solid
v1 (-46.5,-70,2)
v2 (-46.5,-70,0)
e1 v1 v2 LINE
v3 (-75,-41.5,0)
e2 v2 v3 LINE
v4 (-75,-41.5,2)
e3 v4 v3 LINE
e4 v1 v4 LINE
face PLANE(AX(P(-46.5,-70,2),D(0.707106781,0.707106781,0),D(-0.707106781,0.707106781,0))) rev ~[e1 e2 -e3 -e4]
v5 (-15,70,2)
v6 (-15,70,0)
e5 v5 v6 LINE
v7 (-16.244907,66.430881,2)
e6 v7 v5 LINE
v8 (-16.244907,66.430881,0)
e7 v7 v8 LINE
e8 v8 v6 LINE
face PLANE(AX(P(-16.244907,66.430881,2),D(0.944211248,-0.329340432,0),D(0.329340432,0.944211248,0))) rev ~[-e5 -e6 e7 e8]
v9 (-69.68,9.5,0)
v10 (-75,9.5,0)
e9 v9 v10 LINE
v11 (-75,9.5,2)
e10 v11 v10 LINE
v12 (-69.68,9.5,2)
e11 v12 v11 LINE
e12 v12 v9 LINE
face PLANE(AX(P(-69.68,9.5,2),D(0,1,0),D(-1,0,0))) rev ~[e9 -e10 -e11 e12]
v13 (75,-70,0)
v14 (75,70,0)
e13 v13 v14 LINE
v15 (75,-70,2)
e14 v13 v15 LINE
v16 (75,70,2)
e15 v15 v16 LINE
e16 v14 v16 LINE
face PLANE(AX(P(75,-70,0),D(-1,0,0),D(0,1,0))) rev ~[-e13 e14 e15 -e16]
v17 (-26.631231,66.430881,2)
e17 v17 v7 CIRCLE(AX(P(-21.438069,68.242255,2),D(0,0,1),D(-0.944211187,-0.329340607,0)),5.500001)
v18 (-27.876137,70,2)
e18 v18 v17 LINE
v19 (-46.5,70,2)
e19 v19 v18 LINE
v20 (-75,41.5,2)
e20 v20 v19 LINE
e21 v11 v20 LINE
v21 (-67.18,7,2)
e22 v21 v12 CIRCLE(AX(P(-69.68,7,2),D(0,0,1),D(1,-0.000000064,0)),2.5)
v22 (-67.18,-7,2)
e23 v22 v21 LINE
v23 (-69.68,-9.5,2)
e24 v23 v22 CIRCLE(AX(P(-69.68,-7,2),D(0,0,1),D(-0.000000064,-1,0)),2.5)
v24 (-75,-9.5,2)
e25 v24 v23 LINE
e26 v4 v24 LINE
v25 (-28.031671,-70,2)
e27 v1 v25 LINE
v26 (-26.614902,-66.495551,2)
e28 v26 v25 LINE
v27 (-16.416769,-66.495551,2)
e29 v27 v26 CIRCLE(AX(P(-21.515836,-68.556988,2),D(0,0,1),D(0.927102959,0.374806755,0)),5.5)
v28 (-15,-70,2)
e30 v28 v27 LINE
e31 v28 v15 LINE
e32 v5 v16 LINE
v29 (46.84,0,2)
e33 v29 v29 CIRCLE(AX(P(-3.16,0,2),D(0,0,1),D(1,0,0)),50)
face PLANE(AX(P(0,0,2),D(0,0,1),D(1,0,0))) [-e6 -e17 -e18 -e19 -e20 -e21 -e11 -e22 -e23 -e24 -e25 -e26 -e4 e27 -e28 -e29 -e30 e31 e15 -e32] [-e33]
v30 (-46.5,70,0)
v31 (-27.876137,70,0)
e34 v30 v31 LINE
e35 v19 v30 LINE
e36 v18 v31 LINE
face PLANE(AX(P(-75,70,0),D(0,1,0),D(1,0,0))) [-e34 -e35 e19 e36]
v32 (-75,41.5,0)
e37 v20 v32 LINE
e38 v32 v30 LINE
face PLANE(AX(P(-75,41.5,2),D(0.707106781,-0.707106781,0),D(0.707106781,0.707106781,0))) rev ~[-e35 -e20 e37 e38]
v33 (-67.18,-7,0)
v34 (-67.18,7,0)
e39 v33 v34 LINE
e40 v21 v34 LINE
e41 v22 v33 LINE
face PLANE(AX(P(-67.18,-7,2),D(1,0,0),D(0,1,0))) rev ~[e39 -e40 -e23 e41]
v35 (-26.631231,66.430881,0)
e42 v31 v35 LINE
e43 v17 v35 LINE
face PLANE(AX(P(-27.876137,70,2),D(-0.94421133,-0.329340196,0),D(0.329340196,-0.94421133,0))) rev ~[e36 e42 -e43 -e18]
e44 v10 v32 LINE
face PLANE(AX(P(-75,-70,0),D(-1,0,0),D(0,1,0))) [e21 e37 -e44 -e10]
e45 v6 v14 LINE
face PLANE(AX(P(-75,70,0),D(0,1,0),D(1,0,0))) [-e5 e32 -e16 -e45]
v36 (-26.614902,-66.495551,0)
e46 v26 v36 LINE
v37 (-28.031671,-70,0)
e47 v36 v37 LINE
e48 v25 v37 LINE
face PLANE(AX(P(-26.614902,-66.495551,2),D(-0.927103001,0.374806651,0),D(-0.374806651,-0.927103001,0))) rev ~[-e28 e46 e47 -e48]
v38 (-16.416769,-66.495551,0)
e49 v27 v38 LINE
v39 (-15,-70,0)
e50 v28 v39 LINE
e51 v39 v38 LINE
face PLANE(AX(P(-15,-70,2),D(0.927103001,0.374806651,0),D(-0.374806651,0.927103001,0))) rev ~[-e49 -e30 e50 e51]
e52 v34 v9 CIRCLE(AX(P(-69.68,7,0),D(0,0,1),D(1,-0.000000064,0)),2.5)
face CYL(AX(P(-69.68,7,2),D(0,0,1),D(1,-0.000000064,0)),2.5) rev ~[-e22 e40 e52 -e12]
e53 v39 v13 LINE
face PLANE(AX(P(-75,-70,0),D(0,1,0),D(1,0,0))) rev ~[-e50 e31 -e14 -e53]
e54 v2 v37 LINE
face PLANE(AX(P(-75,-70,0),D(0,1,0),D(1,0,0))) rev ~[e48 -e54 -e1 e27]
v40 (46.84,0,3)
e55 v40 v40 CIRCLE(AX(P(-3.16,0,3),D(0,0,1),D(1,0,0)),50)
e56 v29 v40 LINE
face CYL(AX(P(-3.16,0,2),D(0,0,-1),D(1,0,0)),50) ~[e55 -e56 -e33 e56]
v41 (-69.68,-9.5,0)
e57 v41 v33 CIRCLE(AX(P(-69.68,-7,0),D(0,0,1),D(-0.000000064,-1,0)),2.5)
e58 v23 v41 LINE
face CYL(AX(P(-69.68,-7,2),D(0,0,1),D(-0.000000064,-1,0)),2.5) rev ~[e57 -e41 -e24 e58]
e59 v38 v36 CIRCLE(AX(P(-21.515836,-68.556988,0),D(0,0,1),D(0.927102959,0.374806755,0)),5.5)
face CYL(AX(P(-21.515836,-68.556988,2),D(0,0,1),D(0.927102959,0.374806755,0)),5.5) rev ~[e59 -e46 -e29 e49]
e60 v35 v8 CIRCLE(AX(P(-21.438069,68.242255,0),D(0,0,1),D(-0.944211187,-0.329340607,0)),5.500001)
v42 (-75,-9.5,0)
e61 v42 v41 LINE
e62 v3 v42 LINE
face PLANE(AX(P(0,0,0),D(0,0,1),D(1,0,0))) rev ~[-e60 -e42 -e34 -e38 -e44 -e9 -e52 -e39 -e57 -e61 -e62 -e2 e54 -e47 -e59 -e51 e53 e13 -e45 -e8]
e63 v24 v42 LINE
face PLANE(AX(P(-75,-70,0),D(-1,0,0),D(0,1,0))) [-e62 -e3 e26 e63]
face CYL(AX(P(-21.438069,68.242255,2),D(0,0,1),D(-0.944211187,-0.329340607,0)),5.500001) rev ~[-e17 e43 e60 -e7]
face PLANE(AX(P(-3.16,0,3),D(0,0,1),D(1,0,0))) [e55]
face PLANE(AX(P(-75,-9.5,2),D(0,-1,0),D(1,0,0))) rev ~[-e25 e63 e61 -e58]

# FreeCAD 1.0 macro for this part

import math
import FreeCAD as App
import Part
import Sketcher


def add_polygon(sketch, points):
    """Adds a closed chain of lines whose ends are joined by coincident constraints."""
    first, n = sketch.GeometryCount, len(points)
    for a, b in zip(points, points[1:] + points[:1]):
        sketch.addGeometry(Part.LineSegment(App.Vector(*a, 0), App.Vector(*b, 0)), False)
    for i in range(n):
        sketch.addConstraint(Sketcher.Constraint("Coincident", first + i, 2, first + (i + 1) % n, 1))

doc = App.newDocument("Part")
body = doc.addObject("PartDesign::Body", "Body")

# Sketch on XY plane
sketch1 = doc.addObject("Sketcher::SketchObject", "Sketch")
body.addObject(sketch1)
sketch1.AttachmentSupport = (doc.XY_Plane, [""])
sketch1.MapMode = "FlatFace"
add_polygon(sketch1, [(-75, 70), (-75, -70), (75, -70), (75, 70)])  # lines 0-3
sketch1.addConstraint([
    Sketcher.Constraint("Vertical", 0),
    Sketcher.Constraint("Horizontal", 1),
    Sketcher.Constraint("Vertical", 2),
    Sketcher.Constraint("Horizontal", 3),
    Sketcher.Constraint("Symmetric", 0, 2, 2, 2, -1, 1),
    Sketcher.Constraint("DistanceX", 1, 1, 1, 2, 150.0),
    Sketcher.Constraint("DistanceY", 0, 2, 0, 1, 140.0),
])
pad1 = doc.addObject("PartDesign::Pad", "Pad")
body.addObject(pad1)
pad1.Profile = sketch1
pad1.Length = 2

# Sketch on XY plane
sketch2 = doc.addObject("Sketcher::SketchObject", "Sketch001")
body.addObject(sketch2)
sketch2.AttachmentSupport = (doc.XY_Plane, [""])
sketch2.MapMode = "FlatFace"
sketch2.AttachmentOffset = App.Placement(App.Vector(0, 0, 2), App.Rotation())
add_polygon(sketch2, [(-75, 70), (-75, 42), (-46, 70)])  # lines 0-2
add_polygon(sketch2, [(-46, -70), (-75, -42), (-75, -70)])  # lines 3-5
sketch2.addConstraint([
    Sketcher.Constraint("Vertical", 0),
    Sketcher.Constraint("Horizontal", 2),
    Sketcher.Constraint("Vertical", 4),
    Sketcher.Constraint("Horizontal", 5),
    Sketcher.Constraint("Symmetric", 0, 2, 3, 2, -1),
    Sketcher.Constraint("Symmetric", 1, 2, 5, 2, -1),
    Sketcher.Constraint("Perpendicular", 1, 3),
    Sketcher.Constraint("DistanceX", 2, 2, 2, 1, 28.5),
    Sketcher.Constraint("DistanceX", 0, 2, -1, 1, 75.0),
    Sketcher.Constraint("DistanceY", -1, 1, 1, 2, 70.0),
])
pocket1 = doc.addObject("PartDesign::Pocket", "Pocket")
body.addObject(pocket1)
pocket1.Profile = sketch2
pocket1.Type = "ThroughAll"

# Sketch on XY plane
sketch3 = doc.addObject("Sketcher::SketchObject", "Sketch002")
body.addObject(sketch3)
sketch3.AttachmentSupport = (doc.XY_Plane, [""])
sketch3.MapMode = "FlatFace"
sketch3.AttachmentOffset = App.Placement(App.Vector(0, 0, 2), App.Rotation())
sketch3.addGeometry([
    Part.LineSegment(App.Vector(-69.7, 9.5, 0), App.Vector(-75, 9.5, 0)),  # 0
    Part.LineSegment(App.Vector(-75, 9.5, 0), App.Vector(-75, -9.5, 0)),  # 1
    Part.LineSegment(App.Vector(-75, -9.5, 0), App.Vector(-69.7, -9.5, 0)),  # 2
    Part.ArcOfCircle(Part.Circle(App.Vector(-69.7, -7, 0), App.Vector(0, 0, 1), 2.5), math.radians(-90), math.radians(0)),  # 3
    Part.LineSegment(App.Vector(-67.2, -7, 0), App.Vector(-67.2, 7, 0)),  # 4
    Part.ArcOfCircle(Part.Circle(App.Vector(-69.7, 7, 0), App.Vector(0, 0, 1), 2.5), math.radians(0), math.radians(90)),  # 5
], False)
sketch3.addConstraint([
    Sketcher.Constraint("Coincident", 0, 2, 1, 1),
    Sketcher.Constraint("Coincident", 1, 2, 2, 1),
    Sketcher.Constraint("Tangent", 2, 2, 3, 1),
    Sketcher.Constraint("Tangent", 3, 2, 4, 1),
    Sketcher.Constraint("Tangent", 4, 2, 5, 1),
    Sketcher.Constraint("Tangent", 5, 2, 0, 1),
    Sketcher.Constraint("Horizontal", 0),
    Sketcher.Constraint("Vertical", 1),
    Sketcher.Constraint("Horizontal", 2),
    Sketcher.Constraint("Vertical", 4),
    Sketcher.Constraint("Equal", 3, 5),
    Sketcher.Constraint("Radius", 3, 2.5),
    Sketcher.Constraint("DistanceY", 1, 2, 1, 1, 19.0),
    Sketcher.Constraint("DistanceY", 3, 3, -1, 1, 7.0),
    Sketcher.Constraint("DistanceX", 0, 2, -1, 1, 75.0),
    Sketcher.Constraint("DistanceX", 0, 2, 0, 1, 5.32),
])
pocket2 = doc.addObject("PartDesign::Pocket", "Pocket001")
body.addObject(pocket2)
pocket2.Profile = sketch3
pocket2.Type = "ThroughAll"

# Sketch on XY plane
sketch4 = doc.addObject("Sketcher::SketchObject", "Sketch003")
body.addObject(sketch4)
sketch4.AttachmentSupport = (doc.XY_Plane, [""])
sketch4.MapMode = "FlatFace"
sketch4.AttachmentOffset = App.Placement(App.Vector(0, 0, 2), App.Rotation())
sketch4.addGeometry([
    Part.LineSegment(App.Vector(-28, -70, 0), App.Vector(-15, -70, 0)),  # 0
    Part.LineSegment(App.Vector(-15, -70, 0), App.Vector(-16.4, -66.5, 0)),  # 1
    Part.ArcOfCircle(Part.Circle(App.Vector(-21.5, -68.6, 0), App.Vector(0, 0, 1), 5.5), math.radians(22), math.radians(158)),  # 2
    Part.LineSegment(App.Vector(-26.6, -66.5, 0), App.Vector(-28, -70, 0)),  # 3
    Part.LineSegment(App.Vector(-27.9, 70, 0), App.Vector(-26.6, 66.4, 0)),  # 4
    Part.ArcOfCircle(Part.Circle(App.Vector(-21.4, 68.2, 0), App.Vector(0, 0, 1), 5.5), math.radians(-161), math.radians(-19)),  # 5
    Part.LineSegment(App.Vector(-16.2, 66.4, 0), App.Vector(-15, 70, 0)),  # 6
    Part.LineSegment(App.Vector(-15, 70, 0), App.Vector(-27.9, 70, 0)),  # 7
], False)
sketch4.addConstraint([
    Sketcher.Constraint("Coincident", 0, 2, 1, 1),
    Sketcher.Constraint("Tangent", 1, 2, 2, 1),
    Sketcher.Constraint("Tangent", 2, 2, 3, 1),
    Sketcher.Constraint("Coincident", 3, 2, 0, 1),
    Sketcher.Constraint("Tangent", 4, 2, 5, 1),
    Sketcher.Constraint("Tangent", 5, 2, 6, 1),
    Sketcher.Constraint("Coincident", 6, 2, 7, 1),
    Sketcher.Constraint("Coincident", 7, 2, 4, 1),
    Sketcher.Constraint("Horizontal", 0),
    Sketcher.Constraint("Horizontal", 7),
    Sketcher.Constraint("Equal", 2, 5),
    Sketcher.Constraint("Symmetric", 0, 2, 6, 2, -1),
    Sketcher.Constraint("Horizontal", 1, 2, 2, 2),
    Sketcher.Constraint("Horizontal", 4, 2, 5, 2),
    Sketcher.Constraint("Equal", 3, 4),
    Sketcher.Constraint("Radius", 2, 5.5),
    Sketcher.Constraint("DistanceX", 0, 2, -1, 1, 15.0),
    Sketcher.Constraint("DistanceY", 0, 2, -1, 1, 70.0),
    Sketcher.Constraint("Distance", 1, 3.78),
    Sketcher.Constraint("DistanceX", 0, 1, 0, 2, 13.031671),
    Sketcher.Constraint("DistanceX", 5, 3, 1, 2, 5.0213),
])
pocket3 = doc.addObject("PartDesign::Pocket", "Pocket002")
body.addObject(pocket3)
pocket3.Profile = sketch4
pocket3.Type = "ThroughAll"

# Sketch on XY plane
sketch5 = doc.addObject("Sketcher::SketchObject", "Sketch004")
body.addObject(sketch5)
sketch5.AttachmentSupport = (doc.XY_Plane, [""])
sketch5.MapMode = "FlatFace"
sketch5.AttachmentOffset = App.Placement(App.Vector(0, 0, 2), App.Rotation())
sketch5.addGeometry(Part.Circle(App.Vector(-3, 0, 0), App.Vector(0, 0, 1), 50), False)
sketch5.addConstraint([
    Sketcher.Constraint("PointOnObject", 0, 3, -1),
    Sketcher.Constraint("Diameter", 0, 100.0),
    Sketcher.Constraint("DistanceX", 0, 3, -1, 1, 3.16),
])
pad2 = doc.addObject("PartDesign::Pad", "Pad001")
body.addObject(pad2)
pad2.Profile = sketch5
pad2.Length = 1

doc.recompute()
